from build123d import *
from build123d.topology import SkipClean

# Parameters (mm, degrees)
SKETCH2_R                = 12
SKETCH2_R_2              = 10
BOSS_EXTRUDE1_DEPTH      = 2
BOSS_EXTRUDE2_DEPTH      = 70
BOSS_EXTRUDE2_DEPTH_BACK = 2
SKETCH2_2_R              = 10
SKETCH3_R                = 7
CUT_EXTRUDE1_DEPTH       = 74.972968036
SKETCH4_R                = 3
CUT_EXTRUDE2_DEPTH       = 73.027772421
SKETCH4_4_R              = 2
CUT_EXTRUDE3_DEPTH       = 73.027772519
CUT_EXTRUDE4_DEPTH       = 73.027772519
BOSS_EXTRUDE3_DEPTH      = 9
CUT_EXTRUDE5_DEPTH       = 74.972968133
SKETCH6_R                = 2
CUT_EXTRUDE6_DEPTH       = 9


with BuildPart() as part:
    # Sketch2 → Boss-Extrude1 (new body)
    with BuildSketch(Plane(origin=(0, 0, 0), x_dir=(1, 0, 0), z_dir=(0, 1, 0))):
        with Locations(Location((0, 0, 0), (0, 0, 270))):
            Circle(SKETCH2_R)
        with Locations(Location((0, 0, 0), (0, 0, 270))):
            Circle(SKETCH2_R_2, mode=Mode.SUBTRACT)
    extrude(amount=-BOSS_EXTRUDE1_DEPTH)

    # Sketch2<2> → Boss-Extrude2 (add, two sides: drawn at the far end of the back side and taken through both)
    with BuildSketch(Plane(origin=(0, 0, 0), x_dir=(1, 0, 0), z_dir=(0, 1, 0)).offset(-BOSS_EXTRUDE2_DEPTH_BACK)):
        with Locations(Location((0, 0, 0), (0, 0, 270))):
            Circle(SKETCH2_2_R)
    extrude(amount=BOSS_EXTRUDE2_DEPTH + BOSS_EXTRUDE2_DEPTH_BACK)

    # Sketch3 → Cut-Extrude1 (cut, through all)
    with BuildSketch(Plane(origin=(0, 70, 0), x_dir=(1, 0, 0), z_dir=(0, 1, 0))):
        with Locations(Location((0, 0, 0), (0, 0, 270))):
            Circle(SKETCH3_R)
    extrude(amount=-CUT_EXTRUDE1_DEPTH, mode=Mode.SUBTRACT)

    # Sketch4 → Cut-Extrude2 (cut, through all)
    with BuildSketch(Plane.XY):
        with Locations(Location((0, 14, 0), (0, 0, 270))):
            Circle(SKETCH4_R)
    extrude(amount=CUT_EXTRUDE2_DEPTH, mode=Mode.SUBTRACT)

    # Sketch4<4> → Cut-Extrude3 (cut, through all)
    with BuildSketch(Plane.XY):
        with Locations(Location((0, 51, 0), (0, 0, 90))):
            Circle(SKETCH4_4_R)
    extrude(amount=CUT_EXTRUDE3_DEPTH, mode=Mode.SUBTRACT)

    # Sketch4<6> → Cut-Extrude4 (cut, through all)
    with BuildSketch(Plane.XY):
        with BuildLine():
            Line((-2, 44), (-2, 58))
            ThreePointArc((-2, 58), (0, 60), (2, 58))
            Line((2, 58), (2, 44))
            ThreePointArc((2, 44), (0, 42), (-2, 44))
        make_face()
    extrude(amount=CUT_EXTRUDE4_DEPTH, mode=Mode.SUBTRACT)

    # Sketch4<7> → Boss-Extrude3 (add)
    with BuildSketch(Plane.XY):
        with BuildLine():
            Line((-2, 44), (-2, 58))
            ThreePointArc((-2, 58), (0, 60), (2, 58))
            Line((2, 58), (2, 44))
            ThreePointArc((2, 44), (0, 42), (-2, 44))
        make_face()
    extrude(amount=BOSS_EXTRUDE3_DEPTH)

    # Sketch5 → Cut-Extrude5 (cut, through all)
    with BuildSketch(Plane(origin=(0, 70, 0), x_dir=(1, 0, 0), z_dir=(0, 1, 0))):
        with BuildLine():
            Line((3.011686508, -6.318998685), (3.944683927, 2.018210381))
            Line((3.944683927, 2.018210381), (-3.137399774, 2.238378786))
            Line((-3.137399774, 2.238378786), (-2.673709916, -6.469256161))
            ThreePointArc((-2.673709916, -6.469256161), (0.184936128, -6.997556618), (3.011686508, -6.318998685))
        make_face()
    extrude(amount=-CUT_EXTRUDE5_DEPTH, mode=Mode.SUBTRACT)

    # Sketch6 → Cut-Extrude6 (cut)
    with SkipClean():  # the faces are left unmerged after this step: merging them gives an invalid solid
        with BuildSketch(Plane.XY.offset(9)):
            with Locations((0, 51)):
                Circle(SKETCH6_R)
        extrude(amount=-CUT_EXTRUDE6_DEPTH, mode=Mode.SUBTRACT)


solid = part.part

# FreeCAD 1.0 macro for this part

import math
import FreeCAD as App
import Part
import Sketcher
from FreeCAD import Vector

doc = App.newDocument("Part")
body = doc.addObject("PartDesign::Body", "Body")

sketch1 = body.newObject("Sketcher::SketchObject", "Sketch")
sketch1.AttachmentSupport = (doc.getObject("XZ_Plane"), [""])
sketch1.MapMode = "FlatFace"
sketch1.addGeometry([
    Part.Circle(Vector(0, 0, 0), Vector(0, 0, 1), 12),
    Part.Circle(Vector(0, 0, 0), Vector(0, 0, 1), 10),
], False)
sketch1.addConstraint([
    Sketcher.Constraint("Coincident", 0, 3, -1, 1),
    Sketcher.Constraint("Coincident", 1, 3, -1, 1),
    Sketcher.Constraint("Diameter", 0, 24.0),
    Sketcher.Constraint("Diameter", 1, 20.0),
])
pad1 = body.newObject("PartDesign::Pad", "Pad")
pad1.Profile = sketch1
pad1.Length = 2

sketch2 = body.newObject("Sketcher::SketchObject", "Sketch001")
sketch2.AttachmentSupport = (doc.getObject("XZ_Plane"), [""])
sketch2.MapMode = "FlatFace"
sketch2.addGeometry(Part.Circle(Vector(0, 0, 0), Vector(0, 0, 1), 10), False)
sketch2.addConstraint([
    Sketcher.Constraint("Coincident", 0, 3, -1, 1),
    Sketcher.Constraint("Diameter", 0, 20.0),
])
pad2 = body.newObject("PartDesign::Pad", "Pad001")
pad2.Profile = sketch2
pad2.Type = "TwoLengths"
pad2.Length = 70
pad2.Length2 = 2
pad2.Reversed = True

sketch3 = body.newObject("Sketcher::SketchObject", "Sketch002")
sketch3.AttachmentSupport = (doc.getObject("XZ_Plane"), [""])
sketch3.MapMode = "FlatFace"
sketch3.AttachmentOffset = App.Placement(Vector(0, 0, -70), App.Rotation())
sketch3.addGeometry(Part.Circle(Vector(0, 0, 0), Vector(0, 0, 1), 7), False)
sketch3.addConstraint([
    Sketcher.Constraint("Coincident", 0, 3, -1, 1),
    Sketcher.Constraint("Diameter", 0, 14.0),
])
pocket1 = body.newObject("PartDesign::Pocket", "Pocket")
pocket1.Profile = sketch3
pocket1.Type = "ThroughAll"
pocket1.Reversed = True

sketch4 = body.newObject("Sketcher::SketchObject", "Sketch003")
sketch4.AttachmentSupport = (doc.getObject("XY_Plane"), [""])
sketch4.MapMode = "FlatFace"
sketch4.addGeometry(Part.Circle(Vector(0, 14, 0), Vector(0, 0, 1), 3), False)
sketch4.addConstraint([
    Sketcher.Constraint("PointOnObject", 0, 3, -2),
    Sketcher.Constraint("Diameter", 0, 6.0),
    Sketcher.Constraint("DistanceY", -1, 1, 0, 3, 14.0),
])
pocket2 = body.newObject("PartDesign::Pocket", "Pocket001")
pocket2.Profile = sketch4
pocket2.Type = "ThroughAll"
pocket2.Reversed = True

sketch5 = body.newObject("Sketcher::SketchObject", "Sketch004")
sketch5.AttachmentSupport = (doc.getObject("XY_Plane"), [""])
sketch5.MapMode = "FlatFace"
sketch5.addGeometry(Part.Circle(Vector(0, 51, 0), Vector(0, 0, 1), 2), False)
sketch5.addConstraint([
    Sketcher.Constraint("PointOnObject", 0, 3, -2),
    Sketcher.Constraint("Diameter", 0, 4.0),
    Sketcher.Constraint("DistanceY", -1, 1, 0, 3, 51.0),
])
pocket3 = body.newObject("PartDesign::Pocket", "Pocket002")
pocket3.Profile = sketch5
pocket3.Type = "ThroughAll"
pocket3.Reversed = True

sketch6 = body.newObject("Sketcher::SketchObject", "Sketch005")
sketch6.AttachmentSupport = (doc.getObject("XY_Plane"), [""])
sketch6.MapMode = "FlatFace"
sketch6.addGeometry([
    Part.LineSegment(Vector(-2, 58, 0), Vector(-2, 44, 0)),
    Part.ArcOfCircle(Part.Circle(Vector(0, 44, 0), Vector(0, 0, 1), 2), math.radians(180), math.radians(360)),
    Part.LineSegment(Vector(2, 44, 0), Vector(2, 58, 0)),
    Part.ArcOfCircle(Part.Circle(Vector(0, 58, 0), Vector(0, 0, 1), 2), math.radians(0), math.radians(180)),
], False)
sketch6.addConstraint([
    Sketcher.Constraint("Tangent", 0, 2, 1, 1),
    Sketcher.Constraint("Tangent", 1, 2, 2, 1),
    Sketcher.Constraint("Tangent", 2, 2, 3, 1),
    Sketcher.Constraint("Tangent", 3, 2, 0, 1),
    Sketcher.Constraint("Vertical", 0),
    Sketcher.Constraint("Vertical", 2),
    Sketcher.Constraint("PointOnObject", 1, 3, -2),
    Sketcher.Constraint("Radius", 1, 2.0),
    Sketcher.Constraint("DistanceY", 0, 2, 0, 1, 14.0),
    Sketcher.Constraint("DistanceY", -1, 1, 1, 3, 44.0),
])
pocket4 = body.newObject("PartDesign::Pocket", "Pocket003")
pocket4.Profile = sketch6
pocket4.Type = "ThroughAll"
pocket4.Reversed = True

sketch7 = body.newObject("Sketcher::SketchObject", "Sketch006")
sketch7.AttachmentSupport = (doc.getObject("XY_Plane"), [""])
sketch7.MapMode = "FlatFace"
sketch7.addGeometry([
    Part.LineSegment(Vector(-2, 58, 0), Vector(-2, 44, 0)),
    Part.ArcOfCircle(Part.Circle(Vector(0, 44, 0), Vector(0, 0, 1), 2), math.radians(180), math.radians(360)),
    Part.LineSegment(Vector(2, 44, 0), Vector(2, 58, 0)),
    Part.ArcOfCircle(Part.Circle(Vector(0, 58, 0), Vector(0, 0, 1), 2), math.radians(0), math.radians(180)),
], False)
sketch7.addConstraint([
    Sketcher.Constraint("Tangent", 0, 2, 1, 1),
    Sketcher.Constraint("Tangent", 1, 2, 2, 1),
    Sketcher.Constraint("Tangent", 2, 2, 3, 1),
    Sketcher.Constraint("Tangent", 3, 2, 0, 1),
    Sketcher.Constraint("Vertical", 0),
    Sketcher.Constraint("Vertical", 2),
    Sketcher.Constraint("PointOnObject", 1, 3, -2),
    Sketcher.Constraint("Radius", 1, 2.0),
    Sketcher.Constraint("DistanceY", 0, 2, 0, 1, 14.0),
    Sketcher.Constraint("DistanceY", -1, 1, 1, 3, 44.0),
])
pad3 = body.newObject("PartDesign::Pad", "Pad002")
pad3.Profile = sketch7
pad3.Length = 9

sketch8 = body.newObject("Sketcher::SketchObject", "Sketch007")
sketch8.AttachmentSupport = (doc.getObject("XZ_Plane"), [""])
sketch8.MapMode = "FlatFace"
sketch8.AttachmentOffset = App.Placement(Vector(0, 0, -70), App.Rotation())
sketch8.addGeometry([
    Part.LineSegment(Vector(3, 6, 0), Vector(4, -2, 0)),
    Part.LineSegment(Vector(4, -2, 0), Vector(-3, -2, 0)),
    Part.LineSegment(Vector(-3, -2, 0), Vector(-3, 6, 0)),
    Part.ArcOfCircle(Part.Circle(Vector(0, 0, 0), Vector(0, 0, 1), 7), math.radians(65), math.radians(112)),
], False)
sketch8.addConstraint([
    Sketcher.Constraint("Coincident", 0, 2, 1, 1),
    Sketcher.Constraint("Coincident", 1, 2, 2, 1),
    Sketcher.Constraint("Coincident", 2, 2, 3, 2),
    Sketcher.Constraint("Coincident", 3, 1, 0, 1),
    Sketcher.Constraint("Coincident", 3, 3, -1, 1),
    Sketcher.Constraint("Radius", 3, 7.0),
    Sketcher.Constraint("DistanceY", -1, 1, 3, 1, 6.318999),
    Sketcher.Constraint("DistanceX", 1, 2, -1, 1, 3.1374),
    Sketcher.Constraint("Distance", 0, 8.389251),
    Sketcher.Constraint("DistanceY", 0, 2, -1, 1, 2.01821),
    Sketcher.Constraint("DistanceY", 1, 2, -1, 1, 2.238379),
    Sketcher.Constraint("DistanceX", 2, 2, -1, 1, 2.67371),
])
pocket5 = body.newObject("PartDesign::Pocket", "Pocket004")
pocket5.Profile = sketch8
pocket5.Type = "ThroughAll"
pocket5.Reversed = True

sketch9 = body.newObject("Sketcher::SketchObject", "Sketch008")
sketch9.AttachmentSupport = (doc.getObject("XY_Plane"), [""])
sketch9.MapMode = "FlatFace"
sketch9.AttachmentOffset = App.Placement(Vector(0, 0, 9), App.Rotation())
sketch9.addGeometry(Part.Circle(Vector(0, 51, 0), Vector(0, 0, 1), 2), False)
sketch9.addConstraint([
    Sketcher.Constraint("PointOnObject", 0, 3, -2),
    Sketcher.Constraint("Diameter", 0, 4.0),
    Sketcher.Constraint("DistanceY", -1, 1, 0, 3, 51.0),
])
pocket6 = body.newObject("PartDesign::Pocket", "Pocket005")
pocket6.Profile = sketch9
pocket6.Length = 9

doc.recompute()
